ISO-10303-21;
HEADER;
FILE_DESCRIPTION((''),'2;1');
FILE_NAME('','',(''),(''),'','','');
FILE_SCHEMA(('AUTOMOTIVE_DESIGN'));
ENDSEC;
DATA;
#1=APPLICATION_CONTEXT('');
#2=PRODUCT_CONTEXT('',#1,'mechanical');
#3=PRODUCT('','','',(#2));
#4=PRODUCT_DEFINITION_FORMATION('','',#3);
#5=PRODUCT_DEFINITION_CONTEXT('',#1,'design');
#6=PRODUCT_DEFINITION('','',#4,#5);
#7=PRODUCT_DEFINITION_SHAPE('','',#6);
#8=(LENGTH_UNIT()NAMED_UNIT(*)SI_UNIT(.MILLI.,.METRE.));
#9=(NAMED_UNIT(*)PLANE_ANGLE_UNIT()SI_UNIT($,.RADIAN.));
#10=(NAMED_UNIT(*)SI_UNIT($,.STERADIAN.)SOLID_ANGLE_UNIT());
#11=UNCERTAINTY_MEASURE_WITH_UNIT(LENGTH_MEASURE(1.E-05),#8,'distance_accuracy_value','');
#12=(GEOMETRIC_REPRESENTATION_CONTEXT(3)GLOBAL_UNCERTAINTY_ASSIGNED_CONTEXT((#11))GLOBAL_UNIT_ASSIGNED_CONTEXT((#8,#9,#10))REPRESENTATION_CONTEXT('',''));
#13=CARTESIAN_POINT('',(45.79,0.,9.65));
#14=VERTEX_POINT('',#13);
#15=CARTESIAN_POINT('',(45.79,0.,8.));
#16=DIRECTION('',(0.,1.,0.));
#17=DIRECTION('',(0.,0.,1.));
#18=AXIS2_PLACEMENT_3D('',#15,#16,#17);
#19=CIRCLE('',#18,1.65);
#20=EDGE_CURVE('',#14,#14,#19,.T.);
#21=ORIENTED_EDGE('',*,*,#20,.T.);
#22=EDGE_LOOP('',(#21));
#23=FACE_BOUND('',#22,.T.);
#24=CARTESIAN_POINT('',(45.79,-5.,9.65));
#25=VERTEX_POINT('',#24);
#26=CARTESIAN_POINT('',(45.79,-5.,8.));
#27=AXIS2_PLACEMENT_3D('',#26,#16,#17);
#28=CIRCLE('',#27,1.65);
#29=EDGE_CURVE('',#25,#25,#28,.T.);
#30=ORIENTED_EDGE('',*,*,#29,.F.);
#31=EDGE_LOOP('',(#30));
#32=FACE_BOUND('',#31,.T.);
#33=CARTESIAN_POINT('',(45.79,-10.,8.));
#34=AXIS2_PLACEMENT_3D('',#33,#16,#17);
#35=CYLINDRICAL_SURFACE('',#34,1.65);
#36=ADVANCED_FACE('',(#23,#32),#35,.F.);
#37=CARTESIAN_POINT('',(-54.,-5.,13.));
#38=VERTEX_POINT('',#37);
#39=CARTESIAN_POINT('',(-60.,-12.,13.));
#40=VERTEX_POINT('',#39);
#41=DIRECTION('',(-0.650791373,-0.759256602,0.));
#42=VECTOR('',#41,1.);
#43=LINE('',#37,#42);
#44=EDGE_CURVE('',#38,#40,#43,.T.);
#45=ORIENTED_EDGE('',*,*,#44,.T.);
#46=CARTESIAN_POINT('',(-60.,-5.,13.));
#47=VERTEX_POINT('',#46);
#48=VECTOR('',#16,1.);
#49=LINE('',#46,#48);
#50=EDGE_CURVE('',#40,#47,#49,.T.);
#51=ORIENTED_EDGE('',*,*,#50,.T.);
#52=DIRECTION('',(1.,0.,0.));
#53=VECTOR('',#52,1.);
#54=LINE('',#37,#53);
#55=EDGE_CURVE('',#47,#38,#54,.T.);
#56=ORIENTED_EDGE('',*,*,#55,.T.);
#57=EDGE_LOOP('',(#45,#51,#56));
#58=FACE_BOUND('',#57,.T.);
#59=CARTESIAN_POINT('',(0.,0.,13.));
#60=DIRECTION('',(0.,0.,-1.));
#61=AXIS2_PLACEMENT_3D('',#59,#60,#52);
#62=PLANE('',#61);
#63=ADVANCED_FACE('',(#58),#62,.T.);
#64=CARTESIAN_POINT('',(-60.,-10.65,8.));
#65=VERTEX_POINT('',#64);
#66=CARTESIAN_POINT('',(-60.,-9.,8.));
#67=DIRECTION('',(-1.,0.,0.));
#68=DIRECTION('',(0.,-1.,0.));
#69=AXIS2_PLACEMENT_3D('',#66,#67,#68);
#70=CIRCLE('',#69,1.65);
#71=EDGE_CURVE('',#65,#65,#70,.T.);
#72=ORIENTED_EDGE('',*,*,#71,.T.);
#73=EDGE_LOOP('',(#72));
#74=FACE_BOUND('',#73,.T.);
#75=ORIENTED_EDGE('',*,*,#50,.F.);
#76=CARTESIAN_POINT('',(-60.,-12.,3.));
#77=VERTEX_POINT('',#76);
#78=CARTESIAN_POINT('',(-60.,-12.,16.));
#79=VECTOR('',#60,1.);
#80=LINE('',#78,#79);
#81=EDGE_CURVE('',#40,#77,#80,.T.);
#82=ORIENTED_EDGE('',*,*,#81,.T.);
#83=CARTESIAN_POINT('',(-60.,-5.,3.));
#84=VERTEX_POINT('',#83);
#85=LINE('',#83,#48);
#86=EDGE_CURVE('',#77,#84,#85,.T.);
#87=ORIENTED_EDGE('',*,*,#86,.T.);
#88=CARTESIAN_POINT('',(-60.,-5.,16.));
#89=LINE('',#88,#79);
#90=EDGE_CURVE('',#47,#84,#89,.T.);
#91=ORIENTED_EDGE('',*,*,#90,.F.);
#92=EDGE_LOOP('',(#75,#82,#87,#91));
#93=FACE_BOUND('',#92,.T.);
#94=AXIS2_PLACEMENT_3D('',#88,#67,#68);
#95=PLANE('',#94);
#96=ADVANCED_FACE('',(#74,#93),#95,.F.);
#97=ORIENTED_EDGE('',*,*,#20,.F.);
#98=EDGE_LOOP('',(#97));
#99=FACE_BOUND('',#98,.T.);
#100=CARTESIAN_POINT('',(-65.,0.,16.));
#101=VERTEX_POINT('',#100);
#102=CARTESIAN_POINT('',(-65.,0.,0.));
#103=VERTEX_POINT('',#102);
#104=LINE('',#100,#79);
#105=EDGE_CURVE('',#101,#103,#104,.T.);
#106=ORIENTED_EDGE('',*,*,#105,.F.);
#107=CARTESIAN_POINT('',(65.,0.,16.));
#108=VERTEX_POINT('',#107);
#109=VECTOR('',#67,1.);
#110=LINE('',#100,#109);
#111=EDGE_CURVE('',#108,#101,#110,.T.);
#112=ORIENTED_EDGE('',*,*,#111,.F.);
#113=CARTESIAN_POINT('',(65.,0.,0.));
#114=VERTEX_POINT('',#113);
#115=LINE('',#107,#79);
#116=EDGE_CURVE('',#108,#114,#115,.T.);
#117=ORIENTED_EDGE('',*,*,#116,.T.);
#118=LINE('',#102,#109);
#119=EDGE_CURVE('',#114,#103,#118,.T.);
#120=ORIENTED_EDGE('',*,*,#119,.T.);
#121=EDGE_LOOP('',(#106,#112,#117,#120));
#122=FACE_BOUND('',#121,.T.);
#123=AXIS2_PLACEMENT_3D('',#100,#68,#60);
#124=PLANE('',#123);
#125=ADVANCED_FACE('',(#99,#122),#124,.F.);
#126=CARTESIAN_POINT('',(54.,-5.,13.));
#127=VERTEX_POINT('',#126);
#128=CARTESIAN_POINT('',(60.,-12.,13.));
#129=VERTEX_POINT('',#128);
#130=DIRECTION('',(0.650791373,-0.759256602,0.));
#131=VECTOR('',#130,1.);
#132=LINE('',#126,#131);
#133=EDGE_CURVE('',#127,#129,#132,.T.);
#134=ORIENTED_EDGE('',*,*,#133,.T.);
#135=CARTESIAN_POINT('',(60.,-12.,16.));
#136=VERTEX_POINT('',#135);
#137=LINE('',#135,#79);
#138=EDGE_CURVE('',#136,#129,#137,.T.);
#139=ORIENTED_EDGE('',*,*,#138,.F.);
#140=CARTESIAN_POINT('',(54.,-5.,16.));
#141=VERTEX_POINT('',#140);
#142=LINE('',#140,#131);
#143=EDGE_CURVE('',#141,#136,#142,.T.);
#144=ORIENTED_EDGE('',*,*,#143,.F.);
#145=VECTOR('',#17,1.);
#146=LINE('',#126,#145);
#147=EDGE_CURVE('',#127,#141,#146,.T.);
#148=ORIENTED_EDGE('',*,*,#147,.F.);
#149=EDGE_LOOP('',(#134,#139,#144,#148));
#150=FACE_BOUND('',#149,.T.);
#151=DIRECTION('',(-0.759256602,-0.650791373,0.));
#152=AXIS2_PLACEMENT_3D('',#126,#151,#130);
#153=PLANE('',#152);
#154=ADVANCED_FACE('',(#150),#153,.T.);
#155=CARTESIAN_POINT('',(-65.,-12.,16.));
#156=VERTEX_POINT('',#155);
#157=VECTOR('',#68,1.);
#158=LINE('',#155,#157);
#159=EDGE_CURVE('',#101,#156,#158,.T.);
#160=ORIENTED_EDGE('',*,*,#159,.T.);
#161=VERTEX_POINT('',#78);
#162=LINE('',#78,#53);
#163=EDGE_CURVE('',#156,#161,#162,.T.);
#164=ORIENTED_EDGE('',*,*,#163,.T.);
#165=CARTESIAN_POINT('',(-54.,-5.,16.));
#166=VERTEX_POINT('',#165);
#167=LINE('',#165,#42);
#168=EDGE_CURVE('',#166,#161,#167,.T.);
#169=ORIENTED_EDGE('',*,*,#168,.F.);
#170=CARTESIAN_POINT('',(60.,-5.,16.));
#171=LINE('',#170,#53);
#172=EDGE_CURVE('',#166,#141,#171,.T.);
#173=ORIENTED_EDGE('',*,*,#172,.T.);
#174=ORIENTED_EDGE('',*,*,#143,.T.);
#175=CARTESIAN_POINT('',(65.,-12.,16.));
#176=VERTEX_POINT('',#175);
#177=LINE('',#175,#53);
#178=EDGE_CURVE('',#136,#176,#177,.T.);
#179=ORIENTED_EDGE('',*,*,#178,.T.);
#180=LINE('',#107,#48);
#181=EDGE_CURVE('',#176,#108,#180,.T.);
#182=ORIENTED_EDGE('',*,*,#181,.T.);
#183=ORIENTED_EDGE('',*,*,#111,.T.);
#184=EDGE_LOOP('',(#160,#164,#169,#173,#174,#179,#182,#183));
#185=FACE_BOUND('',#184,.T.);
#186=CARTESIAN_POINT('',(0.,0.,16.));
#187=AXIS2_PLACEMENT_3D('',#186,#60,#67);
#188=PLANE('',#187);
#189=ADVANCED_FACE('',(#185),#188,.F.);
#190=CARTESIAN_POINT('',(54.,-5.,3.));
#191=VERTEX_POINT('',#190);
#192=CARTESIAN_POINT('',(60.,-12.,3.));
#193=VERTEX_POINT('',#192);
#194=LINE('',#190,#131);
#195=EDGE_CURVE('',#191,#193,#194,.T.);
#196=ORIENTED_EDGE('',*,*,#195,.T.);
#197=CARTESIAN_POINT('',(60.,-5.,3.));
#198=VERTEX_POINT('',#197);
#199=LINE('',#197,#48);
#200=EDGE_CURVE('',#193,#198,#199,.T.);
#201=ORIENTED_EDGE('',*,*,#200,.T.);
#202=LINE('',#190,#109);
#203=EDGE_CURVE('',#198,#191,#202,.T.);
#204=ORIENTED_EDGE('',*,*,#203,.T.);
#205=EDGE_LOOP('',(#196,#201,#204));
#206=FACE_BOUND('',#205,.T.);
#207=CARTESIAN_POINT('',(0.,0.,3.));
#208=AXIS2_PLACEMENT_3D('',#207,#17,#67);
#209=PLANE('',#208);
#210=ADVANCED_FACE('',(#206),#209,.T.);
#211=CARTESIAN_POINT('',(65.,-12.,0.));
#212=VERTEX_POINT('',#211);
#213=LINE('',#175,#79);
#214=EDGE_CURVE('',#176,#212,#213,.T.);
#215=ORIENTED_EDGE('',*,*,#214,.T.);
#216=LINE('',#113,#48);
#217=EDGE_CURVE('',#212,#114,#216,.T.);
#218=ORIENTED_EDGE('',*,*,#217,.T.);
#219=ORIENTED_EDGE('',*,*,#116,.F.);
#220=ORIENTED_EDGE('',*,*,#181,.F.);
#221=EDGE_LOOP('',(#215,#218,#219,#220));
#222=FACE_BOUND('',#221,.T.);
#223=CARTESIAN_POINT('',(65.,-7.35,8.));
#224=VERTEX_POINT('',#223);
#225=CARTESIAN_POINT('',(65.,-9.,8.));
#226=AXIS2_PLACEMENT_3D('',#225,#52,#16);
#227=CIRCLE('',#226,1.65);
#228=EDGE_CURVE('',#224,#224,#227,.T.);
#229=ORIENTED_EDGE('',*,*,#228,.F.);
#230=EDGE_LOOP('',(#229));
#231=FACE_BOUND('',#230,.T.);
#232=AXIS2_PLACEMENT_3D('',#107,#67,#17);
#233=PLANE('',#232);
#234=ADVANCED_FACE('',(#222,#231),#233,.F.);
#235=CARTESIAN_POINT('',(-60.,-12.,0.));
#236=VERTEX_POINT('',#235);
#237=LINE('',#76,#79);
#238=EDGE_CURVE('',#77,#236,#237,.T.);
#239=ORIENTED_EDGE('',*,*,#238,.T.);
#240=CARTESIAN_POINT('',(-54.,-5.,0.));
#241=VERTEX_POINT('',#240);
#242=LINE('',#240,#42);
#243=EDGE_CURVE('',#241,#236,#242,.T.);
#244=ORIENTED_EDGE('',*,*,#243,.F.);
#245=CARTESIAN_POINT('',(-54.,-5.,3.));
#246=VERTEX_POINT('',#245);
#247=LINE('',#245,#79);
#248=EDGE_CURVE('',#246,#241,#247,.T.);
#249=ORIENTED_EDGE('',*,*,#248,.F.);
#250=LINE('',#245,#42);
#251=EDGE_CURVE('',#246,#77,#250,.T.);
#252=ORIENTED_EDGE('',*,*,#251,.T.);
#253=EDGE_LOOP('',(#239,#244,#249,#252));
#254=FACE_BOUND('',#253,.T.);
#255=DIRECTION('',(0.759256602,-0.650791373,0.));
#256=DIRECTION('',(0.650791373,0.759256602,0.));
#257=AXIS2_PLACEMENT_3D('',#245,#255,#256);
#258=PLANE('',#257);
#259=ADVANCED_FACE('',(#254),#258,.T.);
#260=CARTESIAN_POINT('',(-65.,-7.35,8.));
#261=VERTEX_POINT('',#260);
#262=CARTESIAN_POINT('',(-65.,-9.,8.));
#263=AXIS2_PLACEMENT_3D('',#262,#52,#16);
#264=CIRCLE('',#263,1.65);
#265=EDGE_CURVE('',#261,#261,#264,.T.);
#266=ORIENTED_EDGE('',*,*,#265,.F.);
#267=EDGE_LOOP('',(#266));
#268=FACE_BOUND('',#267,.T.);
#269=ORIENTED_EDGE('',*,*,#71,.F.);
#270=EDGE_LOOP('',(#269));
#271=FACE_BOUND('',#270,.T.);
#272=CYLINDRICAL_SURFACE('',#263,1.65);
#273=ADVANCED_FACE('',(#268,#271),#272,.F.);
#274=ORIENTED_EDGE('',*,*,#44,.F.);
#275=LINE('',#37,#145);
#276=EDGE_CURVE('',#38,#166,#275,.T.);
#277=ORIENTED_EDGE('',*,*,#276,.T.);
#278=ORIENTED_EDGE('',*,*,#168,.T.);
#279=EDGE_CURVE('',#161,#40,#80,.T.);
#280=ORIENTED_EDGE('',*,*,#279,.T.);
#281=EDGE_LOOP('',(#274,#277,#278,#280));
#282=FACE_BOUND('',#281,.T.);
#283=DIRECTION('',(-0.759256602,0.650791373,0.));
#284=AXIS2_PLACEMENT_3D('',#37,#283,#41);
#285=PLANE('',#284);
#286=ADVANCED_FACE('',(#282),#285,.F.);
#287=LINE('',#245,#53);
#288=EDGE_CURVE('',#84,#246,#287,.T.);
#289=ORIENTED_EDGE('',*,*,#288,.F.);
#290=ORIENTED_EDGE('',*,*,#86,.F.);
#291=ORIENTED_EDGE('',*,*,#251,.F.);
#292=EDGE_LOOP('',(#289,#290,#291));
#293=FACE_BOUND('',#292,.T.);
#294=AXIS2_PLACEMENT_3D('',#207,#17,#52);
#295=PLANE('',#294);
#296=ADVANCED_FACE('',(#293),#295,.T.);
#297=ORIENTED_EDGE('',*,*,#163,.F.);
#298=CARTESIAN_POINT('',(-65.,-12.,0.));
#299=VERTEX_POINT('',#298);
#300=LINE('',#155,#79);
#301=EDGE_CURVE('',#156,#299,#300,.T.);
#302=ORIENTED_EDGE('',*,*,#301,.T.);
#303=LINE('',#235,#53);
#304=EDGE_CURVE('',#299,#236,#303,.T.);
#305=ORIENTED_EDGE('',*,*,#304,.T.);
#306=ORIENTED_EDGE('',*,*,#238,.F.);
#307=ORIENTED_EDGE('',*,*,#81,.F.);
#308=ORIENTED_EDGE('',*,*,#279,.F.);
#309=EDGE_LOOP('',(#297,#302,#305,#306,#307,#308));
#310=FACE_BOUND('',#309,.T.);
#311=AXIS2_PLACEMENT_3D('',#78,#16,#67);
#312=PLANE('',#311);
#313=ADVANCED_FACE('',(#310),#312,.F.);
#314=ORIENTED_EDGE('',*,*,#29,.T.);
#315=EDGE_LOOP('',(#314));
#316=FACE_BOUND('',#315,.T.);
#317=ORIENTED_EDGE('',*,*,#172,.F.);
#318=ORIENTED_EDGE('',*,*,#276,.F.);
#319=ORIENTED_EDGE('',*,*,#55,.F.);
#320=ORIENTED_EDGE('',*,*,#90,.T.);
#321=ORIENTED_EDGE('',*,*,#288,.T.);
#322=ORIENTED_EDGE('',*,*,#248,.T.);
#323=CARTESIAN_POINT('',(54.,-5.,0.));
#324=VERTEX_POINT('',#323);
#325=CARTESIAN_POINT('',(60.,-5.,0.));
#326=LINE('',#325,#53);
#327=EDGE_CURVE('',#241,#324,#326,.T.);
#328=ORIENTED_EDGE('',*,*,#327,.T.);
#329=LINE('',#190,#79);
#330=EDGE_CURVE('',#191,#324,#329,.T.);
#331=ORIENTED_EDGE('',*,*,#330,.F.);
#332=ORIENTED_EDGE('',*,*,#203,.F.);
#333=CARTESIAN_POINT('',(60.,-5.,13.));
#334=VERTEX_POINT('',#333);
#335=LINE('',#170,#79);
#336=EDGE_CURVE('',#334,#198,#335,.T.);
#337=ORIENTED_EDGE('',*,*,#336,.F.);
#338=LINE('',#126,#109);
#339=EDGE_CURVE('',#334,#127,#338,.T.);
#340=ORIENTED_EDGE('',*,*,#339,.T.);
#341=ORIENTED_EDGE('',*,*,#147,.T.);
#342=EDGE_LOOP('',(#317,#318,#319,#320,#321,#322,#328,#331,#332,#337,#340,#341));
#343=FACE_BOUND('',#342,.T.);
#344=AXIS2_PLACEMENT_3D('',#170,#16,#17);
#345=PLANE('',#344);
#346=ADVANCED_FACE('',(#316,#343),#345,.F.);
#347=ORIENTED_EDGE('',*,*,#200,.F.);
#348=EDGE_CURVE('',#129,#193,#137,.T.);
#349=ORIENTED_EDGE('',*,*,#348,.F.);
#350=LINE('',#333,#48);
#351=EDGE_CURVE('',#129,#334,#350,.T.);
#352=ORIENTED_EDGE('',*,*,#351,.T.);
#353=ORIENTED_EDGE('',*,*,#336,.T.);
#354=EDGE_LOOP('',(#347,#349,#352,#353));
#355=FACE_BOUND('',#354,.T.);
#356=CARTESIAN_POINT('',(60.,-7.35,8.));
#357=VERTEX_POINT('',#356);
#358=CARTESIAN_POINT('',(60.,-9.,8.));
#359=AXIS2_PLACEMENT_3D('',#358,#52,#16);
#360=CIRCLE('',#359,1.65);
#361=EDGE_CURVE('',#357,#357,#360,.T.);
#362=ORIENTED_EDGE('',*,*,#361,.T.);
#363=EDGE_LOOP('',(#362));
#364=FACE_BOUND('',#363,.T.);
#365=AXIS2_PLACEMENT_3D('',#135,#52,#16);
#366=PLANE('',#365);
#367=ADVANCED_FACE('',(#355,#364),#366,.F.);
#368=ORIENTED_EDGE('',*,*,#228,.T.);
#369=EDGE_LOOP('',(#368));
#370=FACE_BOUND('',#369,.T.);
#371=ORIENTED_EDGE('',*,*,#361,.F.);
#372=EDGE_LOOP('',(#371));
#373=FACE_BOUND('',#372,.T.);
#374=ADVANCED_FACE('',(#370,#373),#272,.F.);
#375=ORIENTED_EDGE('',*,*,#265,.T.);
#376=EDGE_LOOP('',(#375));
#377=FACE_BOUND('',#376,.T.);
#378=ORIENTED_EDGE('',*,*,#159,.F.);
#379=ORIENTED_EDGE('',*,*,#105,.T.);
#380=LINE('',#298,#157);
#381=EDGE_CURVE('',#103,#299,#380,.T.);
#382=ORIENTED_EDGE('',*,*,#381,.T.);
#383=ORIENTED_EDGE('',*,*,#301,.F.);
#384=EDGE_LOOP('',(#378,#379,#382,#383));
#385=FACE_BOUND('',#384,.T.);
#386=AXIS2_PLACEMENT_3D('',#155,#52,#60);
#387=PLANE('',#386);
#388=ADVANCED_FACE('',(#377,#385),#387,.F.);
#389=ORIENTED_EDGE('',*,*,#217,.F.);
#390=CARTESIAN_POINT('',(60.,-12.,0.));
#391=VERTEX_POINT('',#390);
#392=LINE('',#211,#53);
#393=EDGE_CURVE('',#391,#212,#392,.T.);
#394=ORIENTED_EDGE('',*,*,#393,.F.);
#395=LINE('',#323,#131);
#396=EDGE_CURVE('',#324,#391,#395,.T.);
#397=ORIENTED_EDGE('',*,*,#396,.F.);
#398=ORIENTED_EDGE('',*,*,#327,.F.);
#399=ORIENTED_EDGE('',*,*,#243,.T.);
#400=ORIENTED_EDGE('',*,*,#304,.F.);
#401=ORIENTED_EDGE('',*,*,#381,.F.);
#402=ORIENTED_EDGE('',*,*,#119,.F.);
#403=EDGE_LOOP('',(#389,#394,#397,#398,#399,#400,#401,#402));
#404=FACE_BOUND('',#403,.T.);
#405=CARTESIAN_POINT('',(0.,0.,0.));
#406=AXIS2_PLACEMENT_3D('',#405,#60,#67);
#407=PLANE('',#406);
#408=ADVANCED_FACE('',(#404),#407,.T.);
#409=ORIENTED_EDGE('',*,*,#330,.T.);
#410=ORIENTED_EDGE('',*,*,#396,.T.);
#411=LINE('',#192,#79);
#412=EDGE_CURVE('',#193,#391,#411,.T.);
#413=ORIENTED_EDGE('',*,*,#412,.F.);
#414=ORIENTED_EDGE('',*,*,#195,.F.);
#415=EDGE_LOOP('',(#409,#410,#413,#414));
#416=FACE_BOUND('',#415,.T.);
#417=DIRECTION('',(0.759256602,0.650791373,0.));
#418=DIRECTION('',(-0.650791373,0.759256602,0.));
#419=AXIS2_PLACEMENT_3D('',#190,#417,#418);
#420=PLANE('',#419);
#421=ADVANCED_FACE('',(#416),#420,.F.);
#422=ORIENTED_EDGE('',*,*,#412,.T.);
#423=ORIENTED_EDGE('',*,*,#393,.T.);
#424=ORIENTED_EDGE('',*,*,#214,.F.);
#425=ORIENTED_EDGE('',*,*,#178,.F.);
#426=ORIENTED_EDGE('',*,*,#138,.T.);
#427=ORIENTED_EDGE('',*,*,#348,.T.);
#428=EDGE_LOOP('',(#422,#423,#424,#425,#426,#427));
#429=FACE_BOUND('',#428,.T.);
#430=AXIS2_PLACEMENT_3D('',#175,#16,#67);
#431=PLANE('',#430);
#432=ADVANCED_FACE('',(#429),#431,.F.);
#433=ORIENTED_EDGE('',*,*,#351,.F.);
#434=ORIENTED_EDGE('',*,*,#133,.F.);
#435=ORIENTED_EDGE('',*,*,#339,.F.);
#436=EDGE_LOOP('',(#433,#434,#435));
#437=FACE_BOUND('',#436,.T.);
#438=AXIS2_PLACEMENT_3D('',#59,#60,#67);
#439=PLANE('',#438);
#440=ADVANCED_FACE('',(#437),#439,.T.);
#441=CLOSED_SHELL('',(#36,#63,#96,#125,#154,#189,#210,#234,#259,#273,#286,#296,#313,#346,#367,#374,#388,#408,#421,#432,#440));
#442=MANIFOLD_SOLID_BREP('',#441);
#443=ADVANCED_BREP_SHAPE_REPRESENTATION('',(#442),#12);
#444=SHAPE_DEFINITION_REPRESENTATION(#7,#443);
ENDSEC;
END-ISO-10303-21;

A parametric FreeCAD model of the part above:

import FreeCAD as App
import Part
import Sketcher


def add_polygon(sketch, points):
    """Adds a closed chain of lines whose ends are joined by coincident constraints."""
    first, n = sketch.GeometryCount, len(points)
    for a, b in zip(points, points[1:] + points[:1]):
        sketch.addGeometry(Part.LineSegment(App.Vector(*a, 0), App.Vector(*b, 0)), False)
    for i in range(n):
        sketch.addConstraint(Sketcher.Constraint("Coincident", first + i, 2, first + (i + 1) % n, 1))

doc = App.newDocument("Part")
params = doc.addObject("Spreadsheet::Sheet", "Params")
for row, (alias, value) in enumerate([
    ("sketch1_width", "130 mm"),
    ("sketch1_width2", "5 mm"),
    ("sketch1_height", "12 mm"),
    ("sketch1_height2", "7 mm"),
    ("pad1_length", "16 mm"),
    ("sketch2_diameter", "3.3 mm"),
    ("sketch3_width", "6 mm"),
    ("sketch3_height", "7 mm"),
    ("pad2_length", "3 mm"),
    ("sketch4_width", "6 mm"),
    ("sketch4_height", "7 mm"),
    ("pad3_length", "3 mm"),
    ("sketch5_diameter", "3.3 mm"),
    ("pocket2_length", "10 mm"),
], start=1):
    params.set(f"A{row}", alias)
    params.set(f"B{row}", "=" + value)
    params.setAlias(f"B{row}", alias)

body = doc.addObject("PartDesign::Body", "Body")

# Sketch on XY plane
sketch1 = body.newObject("Sketcher::SketchObject", "Sketch")
sketch1.AttachmentSupport = (doc.getObject("XY_Plane"), [""])
sketch1.MapMode = "FlatFace"
add_polygon(sketch1, [(65, 0), (-65, 0), (-65, -12), (-60, -12), (-60, -5), (60, -5), (60, -12), (65, -12)])  # lines 0-7
sketch1.addConstraint([
    Sketcher.Constraint("Horizontal", 0),
    Sketcher.Constraint("Vertical", 1),
    Sketcher.Constraint("Horizontal", 2),
    Sketcher.Constraint("Vertical", 3),
    Sketcher.Constraint("Horizontal", 4),
    Sketcher.Constraint("Vertical", 5),
    Sketcher.Constraint("Horizontal", 6),
    Sketcher.Constraint("Vertical", 7),
    Sketcher.Constraint("Symmetric", 0, 2, 7, 2, -1, 1),
    Sketcher.Constraint("Symmetric", 2, 2, 5, 2, -2),
    Sketcher.Constraint("DistanceX", 0, 2, 0, 1, 130.0),
    Sketcher.Constraint("DistanceX", 2, 1, 2, 2, 5.0),
    Sketcher.Constraint("DistanceY", 1, 2, 1, 1, 12.0),
    Sketcher.Constraint("DistanceY", 3, 1, 3, 2, 7.0),
])
sketch1.setExpression("Constraints[18]", "Params.sketch1_width")
sketch1.setExpression("Constraints[19]", "Params.sketch1_width2")
sketch1.setExpression("Constraints[20]", "Params.sketch1_height")
sketch1.setExpression("Constraints[21]", "Params.sketch1_height2")
pad1 = body.newObject("PartDesign::Pad", "Pad")
pad1.Profile = sketch1
pad1.setExpression("Length", "Params.pad1_length")

# Sketch on YZ plane
sketch2 = body.newObject("Sketcher::SketchObject", "Sketch001")
sketch2.AttachmentSupport = (doc.getObject("YZ_Plane"), [""])
sketch2.MapMode = "FlatFace"
sketch2.AttachmentOffset = App.Placement(App.Vector(0, 0, -60), App.Rotation())
sketch2.addGeometry(Part.Circle(App.Vector(-9, 8, 0), App.Vector(0, 0, 1), 1.6), False)
sketch2.addConstraint([
    Sketcher.Constraint("Diameter", 0, 3.3),
    Sketcher.Constraint("DistanceX", 0, 3, -1, 1, 9.0),
    Sketcher.Constraint("DistanceY", -1, 1, 0, 3, 8.0),
])
sketch2.setExpression("Constraints[0]", "Params.sketch2_diameter")
pocket1 = body.newObject("PartDesign::Pocket", "Pocket")
pocket1.Profile = sketch2
pocket1.Type = "ThroughAll"
pocket1.Midplane = True

# Sketch on XY plane
sketch3 = body.newObject("Sketcher::SketchObject", "Sketch002")
sketch3.AttachmentSupport = (doc.getObject("XY_Plane"), [""])
sketch3.MapMode = "FlatFace"
add_polygon(sketch3, [(-54, -5), (-60, -12), (-60, -5)])  # lines 0-2
sketch3.addConstraint([
    Sketcher.Constraint("Vertical", 1),
    Sketcher.Constraint("Horizontal", 2),
    Sketcher.Constraint("DistanceX", 2, 1, 2, 2, 6.0),
    Sketcher.Constraint("DistanceY", 1, 1, 1, 2, 7.0),
    Sketcher.Constraint("DistanceX", 0, 2, -1, 1, 60.0),
    Sketcher.Constraint("DistanceY", 0, 2, -1, 1, 12.0),
])
sketch3.setExpression("Constraints[5]", "Params.sketch3_width")
sketch3.setExpression("Constraints[6]", "Params.sketch3_height")
pad2 = body.newObject("PartDesign::Pad", "Pad001")
pad2.Profile = sketch3
pad2.setExpression("Length", "Params.pad2_length")
doc.recompute()

datumplane = body.newObject("PartDesign::Plane", "DatumPlane")
datumplane.AttachmentSupport = (doc.getObject("XY_Plane"), [""])
datumplane.MapMode = "FlatFace"
datumplane.AttachmentOffset = App.Placement(App.Vector(0, 0, 8), App.Rotation())
mirrored = body.newObject("PartDesign::Mirrored", "Mirrored")
mirrored.Originals = [pad2]
mirrored.MirrorPlane = (datumplane, [""])
body.Tip = mirrored
doc.recompute()

mirrored2 = body.newObject("PartDesign::Mirrored", "Mirrored001")
mirrored2.Originals = [pad2]
mirrored2.MirrorPlane = (doc.getObject("YZ_Plane"), [""])
body.Tip = mirrored2

# Sketch on XY plane
sketch4 = body.newObject("Sketcher::SketchObject", "Sketch003")
sketch4.AttachmentSupport = (doc.getObject("XY_Plane"), [""])
sketch4.MapMode = "FlatFace"
sketch4.AttachmentOffset = App.Placement(App.Vector(0, 0, 16), App.Rotation())
add_polygon(sketch4, [(54, -5), (60, -12), (60, -5)])  # lines 0-2
sketch4.addConstraint([
    Sketcher.Constraint("Vertical", 1),
    Sketcher.Constraint("Horizontal", 2),
    Sketcher.Constraint("DistanceX", 2, 2, 2, 1, 6.0),
    Sketcher.Constraint("DistanceY", 1, 1, 1, 2, 7.0),
    Sketcher.Constraint("DistanceX", -1, 1, 0, 2, 60.0),
    Sketcher.Constraint("DistanceY", 0, 2, -1, 1, 12.0),
])
sketch4.setExpression("Constraints[5]", "Params.sketch4_width")
sketch4.setExpression("Constraints[6]", "Params.sketch4_height")
pad3 = body.newObject("PartDesign::Pad", "Pad002")
pad3.Profile = sketch4
pad3.setExpression("Length", "Params.pad3_length")
pad3.Reversed = True

# Sketch on XZ plane
sketch5 = body.newObject("Sketcher::SketchObject", "Sketch004")
sketch5.AttachmentSupport = (doc.getObject("XZ_Plane"), [""])
sketch5.MapMode = "FlatFace"
sketch5.addGeometry(Part.Circle(App.Vector(45.8, 8, 0), App.Vector(0, 0, 1), 1.6), False)
sketch5.addConstraint([
    Sketcher.Constraint("Diameter", 0, 3.3),
    Sketcher.Constraint("DistanceY", -1, 1, 0, 3, 8.0),
    Sketcher.Constraint("DistanceX", -1, 1, 0, 3, 45.79),
])
sketch5.setExpression("Constraints[0]", "Params.sketch5_diameter")
pocket2 = body.newObject("PartDesign::Pocket", "Pocket001")
pocket2.Profile = sketch5
pocket2.setExpression("Length", "Params.pocket2_length")
pocket2.Reversed = True

doc.recompute()
